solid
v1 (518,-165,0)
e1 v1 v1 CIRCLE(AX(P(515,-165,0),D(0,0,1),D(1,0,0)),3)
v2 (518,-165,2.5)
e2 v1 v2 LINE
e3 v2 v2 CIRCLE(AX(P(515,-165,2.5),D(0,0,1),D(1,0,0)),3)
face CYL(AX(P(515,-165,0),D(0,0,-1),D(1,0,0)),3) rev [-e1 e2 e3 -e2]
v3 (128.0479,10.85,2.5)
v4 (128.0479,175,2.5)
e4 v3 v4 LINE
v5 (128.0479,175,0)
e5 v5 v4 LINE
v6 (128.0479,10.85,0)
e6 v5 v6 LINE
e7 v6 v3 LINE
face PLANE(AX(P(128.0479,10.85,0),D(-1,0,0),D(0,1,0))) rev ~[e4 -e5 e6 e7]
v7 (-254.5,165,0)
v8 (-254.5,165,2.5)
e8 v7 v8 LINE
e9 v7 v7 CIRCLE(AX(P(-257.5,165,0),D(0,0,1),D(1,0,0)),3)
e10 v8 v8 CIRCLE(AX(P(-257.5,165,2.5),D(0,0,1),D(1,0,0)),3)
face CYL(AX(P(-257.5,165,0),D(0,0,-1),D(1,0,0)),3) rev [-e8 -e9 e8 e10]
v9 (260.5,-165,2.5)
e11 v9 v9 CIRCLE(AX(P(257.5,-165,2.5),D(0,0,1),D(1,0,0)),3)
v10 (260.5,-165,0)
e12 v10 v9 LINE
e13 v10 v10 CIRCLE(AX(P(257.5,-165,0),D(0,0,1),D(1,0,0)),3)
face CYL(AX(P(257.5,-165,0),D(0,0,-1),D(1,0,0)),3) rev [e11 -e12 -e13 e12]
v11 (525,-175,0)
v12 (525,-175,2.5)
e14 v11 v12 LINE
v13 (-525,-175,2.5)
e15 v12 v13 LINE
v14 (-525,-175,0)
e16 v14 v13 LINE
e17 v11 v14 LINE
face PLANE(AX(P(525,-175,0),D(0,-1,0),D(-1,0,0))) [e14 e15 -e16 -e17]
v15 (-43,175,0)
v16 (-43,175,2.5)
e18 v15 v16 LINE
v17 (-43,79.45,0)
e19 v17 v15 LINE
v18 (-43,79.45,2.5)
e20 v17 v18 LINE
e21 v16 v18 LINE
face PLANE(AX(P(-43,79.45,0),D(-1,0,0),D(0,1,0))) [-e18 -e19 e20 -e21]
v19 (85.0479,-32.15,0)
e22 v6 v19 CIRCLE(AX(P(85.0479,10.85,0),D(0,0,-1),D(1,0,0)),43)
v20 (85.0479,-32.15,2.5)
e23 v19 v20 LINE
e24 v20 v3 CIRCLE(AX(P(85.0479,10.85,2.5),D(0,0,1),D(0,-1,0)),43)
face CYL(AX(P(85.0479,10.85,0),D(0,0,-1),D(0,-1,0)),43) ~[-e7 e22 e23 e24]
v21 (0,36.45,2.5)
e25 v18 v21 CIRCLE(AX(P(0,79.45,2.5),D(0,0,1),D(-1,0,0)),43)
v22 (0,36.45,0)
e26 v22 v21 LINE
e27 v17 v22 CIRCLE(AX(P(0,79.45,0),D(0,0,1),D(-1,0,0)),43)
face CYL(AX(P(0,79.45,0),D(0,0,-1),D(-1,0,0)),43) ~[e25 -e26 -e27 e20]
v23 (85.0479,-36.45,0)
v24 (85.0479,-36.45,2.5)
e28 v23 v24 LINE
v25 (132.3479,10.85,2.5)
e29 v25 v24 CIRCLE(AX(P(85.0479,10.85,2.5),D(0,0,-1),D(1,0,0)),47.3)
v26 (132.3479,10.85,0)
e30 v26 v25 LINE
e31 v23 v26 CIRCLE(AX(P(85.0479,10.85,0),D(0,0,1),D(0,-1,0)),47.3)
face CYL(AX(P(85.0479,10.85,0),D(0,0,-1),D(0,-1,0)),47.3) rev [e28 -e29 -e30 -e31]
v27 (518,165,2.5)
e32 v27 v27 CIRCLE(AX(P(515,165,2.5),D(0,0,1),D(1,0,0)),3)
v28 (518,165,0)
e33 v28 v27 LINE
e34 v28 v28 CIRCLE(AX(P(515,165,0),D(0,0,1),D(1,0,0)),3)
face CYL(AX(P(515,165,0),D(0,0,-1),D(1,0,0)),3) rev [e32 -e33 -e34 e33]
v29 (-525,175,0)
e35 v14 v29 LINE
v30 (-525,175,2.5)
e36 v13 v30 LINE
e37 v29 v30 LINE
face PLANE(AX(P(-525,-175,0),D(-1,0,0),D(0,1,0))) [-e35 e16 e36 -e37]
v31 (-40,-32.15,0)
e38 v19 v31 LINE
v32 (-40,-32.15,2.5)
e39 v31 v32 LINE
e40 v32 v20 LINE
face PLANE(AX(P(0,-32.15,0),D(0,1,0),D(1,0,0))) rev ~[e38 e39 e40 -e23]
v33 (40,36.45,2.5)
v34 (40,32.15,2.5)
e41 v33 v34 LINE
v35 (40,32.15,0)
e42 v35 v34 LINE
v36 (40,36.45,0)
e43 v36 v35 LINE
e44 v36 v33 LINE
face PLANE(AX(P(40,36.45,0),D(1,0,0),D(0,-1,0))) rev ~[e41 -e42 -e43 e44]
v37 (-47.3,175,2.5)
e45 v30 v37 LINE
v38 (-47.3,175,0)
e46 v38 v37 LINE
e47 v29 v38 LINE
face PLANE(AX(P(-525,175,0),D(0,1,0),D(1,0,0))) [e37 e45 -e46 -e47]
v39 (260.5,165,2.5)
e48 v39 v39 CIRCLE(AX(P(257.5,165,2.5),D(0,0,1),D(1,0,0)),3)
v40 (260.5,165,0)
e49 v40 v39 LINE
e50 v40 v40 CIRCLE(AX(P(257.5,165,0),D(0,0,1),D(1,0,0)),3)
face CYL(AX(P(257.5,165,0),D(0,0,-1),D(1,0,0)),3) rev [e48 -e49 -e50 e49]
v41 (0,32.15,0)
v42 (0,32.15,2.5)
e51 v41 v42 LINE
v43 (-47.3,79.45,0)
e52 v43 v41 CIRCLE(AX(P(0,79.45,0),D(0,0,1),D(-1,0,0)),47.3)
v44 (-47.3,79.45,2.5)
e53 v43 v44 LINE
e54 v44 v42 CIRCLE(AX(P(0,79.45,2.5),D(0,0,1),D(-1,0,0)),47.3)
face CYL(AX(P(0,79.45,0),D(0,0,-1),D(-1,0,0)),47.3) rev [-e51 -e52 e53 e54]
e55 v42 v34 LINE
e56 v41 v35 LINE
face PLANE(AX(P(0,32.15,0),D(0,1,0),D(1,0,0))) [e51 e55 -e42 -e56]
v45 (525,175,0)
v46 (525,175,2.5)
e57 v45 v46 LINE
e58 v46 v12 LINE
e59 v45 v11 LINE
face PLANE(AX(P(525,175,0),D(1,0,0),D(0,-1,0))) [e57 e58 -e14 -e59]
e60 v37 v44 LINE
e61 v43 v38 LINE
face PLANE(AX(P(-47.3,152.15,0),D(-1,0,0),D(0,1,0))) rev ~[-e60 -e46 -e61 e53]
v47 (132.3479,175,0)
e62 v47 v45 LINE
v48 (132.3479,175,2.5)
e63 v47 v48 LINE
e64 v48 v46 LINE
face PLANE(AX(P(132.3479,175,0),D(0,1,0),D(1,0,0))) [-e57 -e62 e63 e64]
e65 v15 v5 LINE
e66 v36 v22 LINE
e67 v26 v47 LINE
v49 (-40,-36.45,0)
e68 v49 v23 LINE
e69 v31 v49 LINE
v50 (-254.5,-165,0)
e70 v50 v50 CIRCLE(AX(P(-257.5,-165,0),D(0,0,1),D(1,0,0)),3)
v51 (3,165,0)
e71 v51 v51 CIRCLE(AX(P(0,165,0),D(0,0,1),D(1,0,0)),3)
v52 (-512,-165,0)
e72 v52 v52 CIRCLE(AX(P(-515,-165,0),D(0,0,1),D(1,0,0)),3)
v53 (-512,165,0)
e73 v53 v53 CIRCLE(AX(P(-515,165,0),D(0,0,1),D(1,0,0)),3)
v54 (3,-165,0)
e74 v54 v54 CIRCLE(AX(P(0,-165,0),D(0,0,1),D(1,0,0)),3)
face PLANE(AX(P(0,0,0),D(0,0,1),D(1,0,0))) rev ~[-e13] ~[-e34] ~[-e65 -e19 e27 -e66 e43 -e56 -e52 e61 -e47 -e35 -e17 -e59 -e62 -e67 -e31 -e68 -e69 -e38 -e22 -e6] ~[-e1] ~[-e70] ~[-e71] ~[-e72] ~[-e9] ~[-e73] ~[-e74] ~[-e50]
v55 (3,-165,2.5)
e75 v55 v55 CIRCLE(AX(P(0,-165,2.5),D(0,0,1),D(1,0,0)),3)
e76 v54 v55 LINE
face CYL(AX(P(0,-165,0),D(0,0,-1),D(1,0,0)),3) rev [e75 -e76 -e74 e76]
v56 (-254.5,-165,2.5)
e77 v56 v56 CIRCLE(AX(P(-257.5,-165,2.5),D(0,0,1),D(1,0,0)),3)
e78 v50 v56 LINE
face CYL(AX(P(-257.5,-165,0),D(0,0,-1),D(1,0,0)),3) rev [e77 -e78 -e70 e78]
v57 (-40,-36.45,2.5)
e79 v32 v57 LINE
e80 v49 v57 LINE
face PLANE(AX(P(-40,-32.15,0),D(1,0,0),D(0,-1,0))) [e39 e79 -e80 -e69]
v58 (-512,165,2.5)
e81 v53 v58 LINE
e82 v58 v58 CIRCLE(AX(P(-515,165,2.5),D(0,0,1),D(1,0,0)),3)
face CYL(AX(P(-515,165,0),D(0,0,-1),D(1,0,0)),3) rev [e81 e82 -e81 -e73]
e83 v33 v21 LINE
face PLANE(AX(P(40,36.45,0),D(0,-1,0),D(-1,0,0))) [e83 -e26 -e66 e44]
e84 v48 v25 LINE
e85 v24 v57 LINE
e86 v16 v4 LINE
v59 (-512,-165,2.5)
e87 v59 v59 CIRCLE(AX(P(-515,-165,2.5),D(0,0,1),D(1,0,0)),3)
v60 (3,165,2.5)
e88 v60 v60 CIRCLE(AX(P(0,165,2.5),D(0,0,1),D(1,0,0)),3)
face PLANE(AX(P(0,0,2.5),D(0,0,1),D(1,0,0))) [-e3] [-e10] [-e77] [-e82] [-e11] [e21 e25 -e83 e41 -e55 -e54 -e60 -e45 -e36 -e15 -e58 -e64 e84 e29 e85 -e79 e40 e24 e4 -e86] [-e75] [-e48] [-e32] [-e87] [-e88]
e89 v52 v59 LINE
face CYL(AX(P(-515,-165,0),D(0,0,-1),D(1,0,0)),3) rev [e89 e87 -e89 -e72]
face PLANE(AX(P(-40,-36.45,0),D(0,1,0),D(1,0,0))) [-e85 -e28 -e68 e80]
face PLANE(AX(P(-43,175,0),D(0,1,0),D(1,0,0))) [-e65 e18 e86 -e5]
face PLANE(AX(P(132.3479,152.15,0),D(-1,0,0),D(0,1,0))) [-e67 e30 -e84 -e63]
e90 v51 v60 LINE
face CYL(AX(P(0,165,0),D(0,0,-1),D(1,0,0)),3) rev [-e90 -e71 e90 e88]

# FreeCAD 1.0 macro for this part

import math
import FreeCAD as App
import Part
import Sketcher

V = App.Vector
Q = App.Units.Quantity

doc = App.newDocument("Part")
params = doc.addObject("Spreadsheet::Sheet", "Params")
for row, (alias, value) in enumerate([
    ("sketch1_radius", "43 mm"),
    ("sketch1_radius2", "47.3 mm"),
    ("sketch1_width", "40 mm"),
    ("sketch1_diameter", "6 mm"),
    ("sketch1_width2", "1050 mm"),
    ("pad1_length", "2.5 mm"),
], start=1):
    params.set(f"A{row}", alias)
    params.set(f"B{row}", "=" + value)
    params.setAlias(f"B{row}", alias)

body = doc.addObject("PartDesign::Body", "Body")

# Sketch on XY plane
sketch1 = body.newObject("Sketcher::SketchObject", "Sketch")
sketch1.AttachmentSupport = (doc.getObject("XY_Plane"), [""])
sketch1.MapMode = "FlatFace"
sketch1.addGeometry([
    Part.LineSegment(V(-47.3, 175, 0), V(-525, 175, 0)),  # 0
    Part.LineSegment(V(-525, 175, 0), V(-525, -175, 0)),  # 1
    Part.LineSegment(V(-525, -175, 0), V(525, -175, 0)),  # 2
    Part.LineSegment(V(525, -175, 0), V(525, 175, 0)),  # 3
    Part.LineSegment(V(525, 175, 0), V(132.3, 175, 0)),  # 4
    Part.LineSegment(V(132.3, 175, 0), V(132.3, 10.8, 0)),  # 5
    Part.ArcOfCircle(Part.Circle(V(85, 10.8, 0), V(0, 0, 1), 47.3), math.radians(-90), math.radians(0)),  # 6
    Part.LineSegment(V(85, -36.5, 0), V(-40, -36.5, 0)),  # 7
    Part.LineSegment(V(-40, -36.5, 0), V(-40, -32.1, 0)),  # 8
    Part.LineSegment(V(-40, -32.1, 0), V(85, -32.1, 0)),  # 9
    Part.ArcOfCircle(Part.Circle(V(85, 10.8, 0), V(0, 0, 1), 43), math.radians(-90), math.radians(0)),  # 10
    Part.LineSegment(V(128, 10.8, 0), V(128, 175, 0)),  # 11
    Part.LineSegment(V(128, 175, 0), V(-43, 175, 0)),  # 12
    Part.LineSegment(V(-43, 175, 0), V(-43, 79.5, 0)),  # 13
    Part.ArcOfCircle(Part.Circle(V(0, 79.5, 0), V(0, 0, 1), 43), math.radians(180), math.radians(270)),  # 14
    Part.LineSegment(V(0, 36.5, 0), V(40, 36.5, 0)),  # 15
    Part.LineSegment(V(40, 36.5, 0), V(40, 32.1, 0)),  # 16
    Part.LineSegment(V(40, 32.1, 0), V(0, 32.1, 0)),  # 17
    Part.ArcOfCircle(Part.Circle(V(0, 79.5, 0), V(0, 0, 1), 47.3), math.radians(180), math.radians(270)),  # 18
    Part.LineSegment(V(-47.3, 79.5, 0), V(-47.3, 175, 0)),  # 19
    Part.Circle(V(-515, -165, 0), V(0, 0, 1), 3),  # 20
    Part.Circle(V(-257.5, -165, 0), V(0, 0, 1), 3),  # 21
    Part.Circle(V(0, -165, 0), V(0, 0, 1), 3),  # 22
    Part.Circle(V(257.5, -165, 0), V(0, 0, 1), 3),  # 23
    Part.Circle(V(515, -165, 0), V(0, 0, 1), 3),  # 24
    Part.Circle(V(-515, 165, 0), V(0, 0, 1), 3),  # 25
    Part.Circle(V(-257.5, 165, 0), V(0, 0, 1), 3),  # 26
    Part.Circle(V(257.5, 165, 0), V(0, 0, 1), 3),  # 27
    Part.Circle(V(515, 165, 0), V(0, 0, 1), 3),  # 28
    Part.Circle(V(0, 165, 0), V(0, 0, 1), 3),  # 29
], False)
sketch1.addConstraint([
    Sketcher.Constraint("Coincident", 0, 2, 1, 1),
    Sketcher.Constraint("Coincident", 1, 2, 2, 1),
    Sketcher.Constraint("Coincident", 2, 2, 3, 1),
    Sketcher.Constraint("Coincident", 3, 2, 4, 1),
    Sketcher.Constraint("Coincident", 4, 2, 5, 1),
    Sketcher.Constraint("Tangent", 5, 2, 6, 2),
    Sketcher.Constraint("Tangent", 6, 1, 7, 1),
    Sketcher.Constraint("Coincident", 7, 2, 8, 1),
    Sketcher.Constraint("Coincident", 8, 2, 9, 1),
    Sketcher.Constraint("Tangent", 9, 2, 10, 1),
    Sketcher.Constraint("Tangent", 10, 2, 11, 1),
    Sketcher.Constraint("Coincident", 11, 2, 12, 1),
    Sketcher.Constraint("Coincident", 12, 2, 13, 1),
    Sketcher.Constraint("Tangent", 13, 2, 14, 1),
    Sketcher.Constraint("Tangent", 14, 2, 15, 1),
    Sketcher.Constraint("Coincident", 15, 2, 16, 1),
    Sketcher.Constraint("Coincident", 16, 2, 17, 1),
    Sketcher.Constraint("Tangent", 17, 2, 18, 2),
    Sketcher.Constraint("Tangent", 18, 1, 19, 1),
    Sketcher.Constraint("Coincident", 19, 2, 0, 1),
    Sketcher.Constraint("Horizontal", 0),
    Sketcher.Constraint("Vertical", 1),
    Sketcher.Constraint("Horizontal", 2),
    Sketcher.Constraint("Vertical", 3),
    Sketcher.Constraint("Horizontal", 4),
    Sketcher.Constraint("Vertical", 5),
    Sketcher.Constraint("Horizontal", 7),
    Sketcher.Constraint("Vertical", 8),
    Sketcher.Constraint("Horizontal", 9),
    Sketcher.Constraint("Vertical", 11),
    Sketcher.Constraint("Horizontal", 12),
    Sketcher.Constraint("Vertical", 13),
    Sketcher.Constraint("Horizontal", 15),
    Sketcher.Constraint("Vertical", 16),
    Sketcher.Constraint("Horizontal", 17),
    Sketcher.Constraint("Vertical", 19),
    Sketcher.Constraint("Coincident", 10, 3, 6, 3),
    Sketcher.Constraint("Coincident", 18, 3, 14, 3),
    Sketcher.Constraint("Equal", 10, 14),
    Sketcher.Constraint("Equal", 6, 18),
    Sketcher.Constraint("Equal", 20, 21),
    Sketcher.Constraint("Equal", 21, 22),
    Sketcher.Constraint("Equal", 22, 23),
    Sketcher.Constraint("Equal", 23, 24),
    Sketcher.Constraint("Equal", 24, 25),
    Sketcher.Constraint("Equal", 25, 26),
    Sketcher.Constraint("Equal", 26, 27),
    Sketcher.Constraint("Equal", 27, 28),
    Sketcher.Constraint("Equal", 28, 29),
    Sketcher.Constraint("Symmetric", 24, 3, 25, 3, -1, 1),
    Sketcher.Constraint("Symmetric", 23, 3, 26, 3, -1, 1),
    Sketcher.Constraint("Symmetric", 21, 3, 27, 3, -1, 1),
    Sketcher.Constraint("Symmetric", 20, 3, 28, 3, -1, 1),
    Sketcher.Constraint("Symmetric", 22, 3, 29, 3, -1, 1),
    Sketcher.Constraint("Symmetric", 0, 2, 2, 2, -1, 1),
    Sketcher.Constraint("Symmetric", 7, 2, 15, 2, -1, 1),
    Sketcher.Constraint("Symmetric", 21, 3, 23, 3, -2),
    Sketcher.Constraint("Symmetric", 20, 3, 24, 3, -2),
    Sketcher.Constraint("PointOnObject", 14, 3, -2),
    Sketcher.Constraint("PointOnObject", 22, 3, -2),
    Sketcher.Constraint("Horizontal", 20, 3, 21, 3),
    Sketcher.Constraint("Horizontal", 21, 3, 22, 3),
    Sketcher.Constraint("Horizontal", 0, 2, 3, 2),
    Sketcher.Constraint("Horizontal", 4, 2, 11, 2),
    Sketcher.Constraint("Radius", 10, Q("43 mm")),
    Sketcher.Constraint("Radius", 6, Q("47.3 mm")),
    Sketcher.Constraint("DistanceX", 15, 1, 15, 2, Q("40 mm")),
    Sketcher.Constraint("Diameter", 20, Q("6 mm")),
    Sketcher.Constraint("DistanceX", 2, 1, 2, 2, Q("1050 mm")),
    Sketcher.Constraint("DistanceY", 1, 2, 1, 1, Q("350 mm")),
    Sketcher.Constraint("DistanceX", 20, 3, -1, 1, Q("515 mm")),
    Sketcher.Constraint("DistanceY", 20, 3, -1, 1, Q("165 mm")),
    Sketcher.Constraint("DistanceY", 5, 2, 5, 1, Q("164.15 mm")),
    Sketcher.Constraint("DistanceX", 21, 3, -1, 1, Q("257.5 mm")),
    Sketcher.Constraint("DistanceX", 4, 2, 4, 1, Q("392.652 mm")),
])
sketch1.setExpression("Constraints[64]", "Params.sketch1_radius")
sketch1.setExpression("Constraints[65]", "Params.sketch1_radius2")
sketch1.setExpression("Constraints[66]", "Params.sketch1_width")
sketch1.setExpression("Constraints[67]", "Params.sketch1_diameter")
sketch1.setExpression("Constraints[68]", "Params.sketch1_width2")
pad1 = body.newObject("PartDesign::Pad", "Pad")
pad1.Profile = sketch1
pad1.setExpression("Length", "Params.pad1_length")

doc.recompute()
